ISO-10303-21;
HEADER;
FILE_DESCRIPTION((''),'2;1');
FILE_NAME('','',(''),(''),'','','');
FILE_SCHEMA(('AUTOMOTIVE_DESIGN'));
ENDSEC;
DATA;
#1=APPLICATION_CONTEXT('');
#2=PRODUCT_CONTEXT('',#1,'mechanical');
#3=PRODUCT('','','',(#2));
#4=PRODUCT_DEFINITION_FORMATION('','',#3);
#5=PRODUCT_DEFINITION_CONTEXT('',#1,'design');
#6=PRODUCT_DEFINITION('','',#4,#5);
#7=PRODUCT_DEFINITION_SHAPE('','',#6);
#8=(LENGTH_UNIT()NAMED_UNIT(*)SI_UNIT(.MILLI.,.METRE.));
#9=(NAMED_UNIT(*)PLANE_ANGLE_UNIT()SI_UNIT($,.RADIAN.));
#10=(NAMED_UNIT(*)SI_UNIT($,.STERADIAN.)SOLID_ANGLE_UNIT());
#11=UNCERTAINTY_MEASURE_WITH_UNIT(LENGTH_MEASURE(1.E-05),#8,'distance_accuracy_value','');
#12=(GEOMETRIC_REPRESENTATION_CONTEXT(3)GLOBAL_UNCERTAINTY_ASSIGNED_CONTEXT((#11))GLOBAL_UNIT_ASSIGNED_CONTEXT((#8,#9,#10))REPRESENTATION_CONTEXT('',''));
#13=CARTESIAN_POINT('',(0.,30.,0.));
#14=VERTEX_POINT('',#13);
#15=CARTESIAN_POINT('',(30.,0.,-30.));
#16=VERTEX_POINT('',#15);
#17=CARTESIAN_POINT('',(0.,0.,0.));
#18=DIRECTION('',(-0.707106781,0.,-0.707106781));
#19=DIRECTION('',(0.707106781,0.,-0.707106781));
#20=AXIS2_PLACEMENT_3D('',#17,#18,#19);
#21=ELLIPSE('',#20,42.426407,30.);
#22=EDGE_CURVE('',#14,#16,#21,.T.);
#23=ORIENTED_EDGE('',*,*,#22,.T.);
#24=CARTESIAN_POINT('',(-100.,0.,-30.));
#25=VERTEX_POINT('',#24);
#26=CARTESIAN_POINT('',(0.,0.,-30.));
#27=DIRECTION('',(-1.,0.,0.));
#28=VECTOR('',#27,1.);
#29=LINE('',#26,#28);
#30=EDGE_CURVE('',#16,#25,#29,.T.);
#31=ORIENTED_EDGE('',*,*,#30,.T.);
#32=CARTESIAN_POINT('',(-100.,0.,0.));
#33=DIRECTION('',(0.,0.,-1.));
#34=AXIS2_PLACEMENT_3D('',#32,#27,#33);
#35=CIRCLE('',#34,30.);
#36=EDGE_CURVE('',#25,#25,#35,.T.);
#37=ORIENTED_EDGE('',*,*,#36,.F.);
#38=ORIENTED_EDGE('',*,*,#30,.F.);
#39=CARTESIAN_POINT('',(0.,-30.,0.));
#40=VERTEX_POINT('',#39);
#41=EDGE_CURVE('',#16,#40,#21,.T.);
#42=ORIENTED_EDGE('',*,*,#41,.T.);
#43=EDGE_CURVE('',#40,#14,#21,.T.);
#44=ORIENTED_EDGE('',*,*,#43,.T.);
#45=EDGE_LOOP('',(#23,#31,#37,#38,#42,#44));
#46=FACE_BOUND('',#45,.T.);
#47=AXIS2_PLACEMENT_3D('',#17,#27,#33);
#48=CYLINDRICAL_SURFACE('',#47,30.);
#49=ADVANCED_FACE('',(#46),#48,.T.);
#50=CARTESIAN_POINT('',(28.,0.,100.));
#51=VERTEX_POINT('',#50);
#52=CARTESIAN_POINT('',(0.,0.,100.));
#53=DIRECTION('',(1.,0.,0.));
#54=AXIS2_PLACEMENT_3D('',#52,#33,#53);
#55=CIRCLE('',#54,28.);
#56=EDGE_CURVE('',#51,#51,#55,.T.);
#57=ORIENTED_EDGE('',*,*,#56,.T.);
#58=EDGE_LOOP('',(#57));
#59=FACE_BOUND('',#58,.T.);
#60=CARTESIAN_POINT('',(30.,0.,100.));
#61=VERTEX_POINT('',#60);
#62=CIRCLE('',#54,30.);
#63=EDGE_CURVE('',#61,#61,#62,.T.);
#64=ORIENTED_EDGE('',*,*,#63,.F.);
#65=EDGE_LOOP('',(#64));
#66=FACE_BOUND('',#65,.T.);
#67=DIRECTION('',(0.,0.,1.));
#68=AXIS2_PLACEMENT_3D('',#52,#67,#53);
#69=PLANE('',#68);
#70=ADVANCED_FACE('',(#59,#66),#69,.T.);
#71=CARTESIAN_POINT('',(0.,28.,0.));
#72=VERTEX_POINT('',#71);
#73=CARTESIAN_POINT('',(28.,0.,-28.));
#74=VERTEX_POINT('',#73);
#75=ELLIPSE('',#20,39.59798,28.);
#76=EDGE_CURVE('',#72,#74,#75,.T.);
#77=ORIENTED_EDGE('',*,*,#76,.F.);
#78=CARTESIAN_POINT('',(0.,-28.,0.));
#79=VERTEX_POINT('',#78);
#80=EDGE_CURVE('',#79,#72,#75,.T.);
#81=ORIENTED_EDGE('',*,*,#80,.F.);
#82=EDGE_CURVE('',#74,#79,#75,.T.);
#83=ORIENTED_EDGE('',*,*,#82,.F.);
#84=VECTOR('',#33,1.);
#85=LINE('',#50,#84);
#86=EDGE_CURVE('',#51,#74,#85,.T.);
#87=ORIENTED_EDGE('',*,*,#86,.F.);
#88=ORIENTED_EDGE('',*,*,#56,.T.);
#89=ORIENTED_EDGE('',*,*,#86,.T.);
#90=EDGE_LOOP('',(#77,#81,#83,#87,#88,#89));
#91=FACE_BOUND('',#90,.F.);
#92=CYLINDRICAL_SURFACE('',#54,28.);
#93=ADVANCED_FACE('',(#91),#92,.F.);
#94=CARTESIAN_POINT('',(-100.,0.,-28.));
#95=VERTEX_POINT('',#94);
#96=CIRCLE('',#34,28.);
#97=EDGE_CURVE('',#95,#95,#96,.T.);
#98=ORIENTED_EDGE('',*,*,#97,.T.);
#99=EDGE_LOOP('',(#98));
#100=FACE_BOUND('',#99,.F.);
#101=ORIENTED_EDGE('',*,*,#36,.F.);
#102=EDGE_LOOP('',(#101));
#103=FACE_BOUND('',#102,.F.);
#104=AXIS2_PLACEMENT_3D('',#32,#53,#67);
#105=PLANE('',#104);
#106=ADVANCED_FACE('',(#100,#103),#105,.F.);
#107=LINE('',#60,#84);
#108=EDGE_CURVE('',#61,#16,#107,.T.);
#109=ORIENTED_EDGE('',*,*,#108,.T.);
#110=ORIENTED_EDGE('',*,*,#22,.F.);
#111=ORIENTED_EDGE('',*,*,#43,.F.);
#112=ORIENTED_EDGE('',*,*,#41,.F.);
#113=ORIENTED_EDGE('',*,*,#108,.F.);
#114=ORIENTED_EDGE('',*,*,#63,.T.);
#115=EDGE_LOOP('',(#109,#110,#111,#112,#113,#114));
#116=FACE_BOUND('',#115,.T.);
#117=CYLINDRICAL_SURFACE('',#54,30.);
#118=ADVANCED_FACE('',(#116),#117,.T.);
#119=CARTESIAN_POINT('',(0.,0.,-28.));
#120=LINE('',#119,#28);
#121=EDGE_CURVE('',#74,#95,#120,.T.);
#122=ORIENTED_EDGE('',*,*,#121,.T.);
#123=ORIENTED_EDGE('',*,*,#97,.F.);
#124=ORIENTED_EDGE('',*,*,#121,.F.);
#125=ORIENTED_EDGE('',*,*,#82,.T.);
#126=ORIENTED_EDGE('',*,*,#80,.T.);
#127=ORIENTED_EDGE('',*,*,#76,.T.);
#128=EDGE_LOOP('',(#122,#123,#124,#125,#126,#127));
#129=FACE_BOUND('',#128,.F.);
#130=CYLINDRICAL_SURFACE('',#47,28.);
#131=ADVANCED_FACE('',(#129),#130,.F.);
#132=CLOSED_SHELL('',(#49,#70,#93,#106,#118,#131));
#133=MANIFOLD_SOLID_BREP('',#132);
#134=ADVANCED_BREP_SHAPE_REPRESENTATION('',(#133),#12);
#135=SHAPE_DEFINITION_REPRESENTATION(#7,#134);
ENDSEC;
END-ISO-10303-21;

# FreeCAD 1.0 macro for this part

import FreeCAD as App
import Part
import Sketcher
Q = App.Units.Quantity

doc = App.newDocument("Part")
body = doc.addObject("PartDesign::Body", "Body")

sketch1 = body.newObject("Sketcher::SketchObject", "Sketch")
sketch1.AttachmentSupport = (doc.getObject("XY_Plane"), [""])
sketch1.MapMode = "FlatFace"
sketch1.AttachmentOffset = App.Placement(App.Vector(0, 0, 100), App.Rotation())
sketch1.addGeometry(Part.Circle(App.Vector(0, 0, 0), App.Vector(0, 0, 1), 30), False)
sketch1.addGeometry(Part.Circle(App.Vector(0, 0, 0), App.Vector(0, 0, 1), 28), False)
sketch1.addConstraint(Sketcher.Constraint("Coincident", 0, 3, -1, 1))
sketch1.addConstraint(Sketcher.Constraint("Coincident", 1, 3, -1, 1))
sketch1.addConstraint(Sketcher.Constraint("Diameter", 0, Q("60 mm")))
sketch1.addConstraint(Sketcher.Constraint("Diameter", 1, Q("56 mm")))

sketch2 = body.newObject("Sketcher::SketchObject", "Sketch001")
sketch2.AttachmentSupport = (doc.getObject("XZ_Plane"), [""])
sketch2.MapMode = "FlatFace"
sketch2.addGeometry(Part.LineSegment(App.Vector(0, 100, 0), App.Vector(0, 0, 0)), False)
sketch2.addGeometry(Part.LineSegment(App.Vector(0, 0, 0), App.Vector(-100, 0, 0)), False)
sketch2.addConstraint(Sketcher.Constraint("Coincident", 0, 2, 1, 1))
sketch2.addConstraint(Sketcher.Constraint("Vertical", 0))
sketch2.addConstraint(Sketcher.Constraint("Horizontal", 1))
sketch2.addConstraint(Sketcher.Constraint("Coincident", 0, 2, -1, 1))
sketch2.addConstraint(Sketcher.Constraint("Equal", 1, 0))
sketch2.addConstraint(Sketcher.Constraint("DistanceX", 1, 2, 1, 1, Q("100 mm")))
doc.recompute()

additivepipe = body.newObject("PartDesign::AdditivePipe", "AdditivePipe")
additivepipe.Profile = sketch1
additivepipe.Spine = (sketch2, ["Edge1", "Edge2"])
additivepipe.Transition = "Right corner"

doc.recompute()
